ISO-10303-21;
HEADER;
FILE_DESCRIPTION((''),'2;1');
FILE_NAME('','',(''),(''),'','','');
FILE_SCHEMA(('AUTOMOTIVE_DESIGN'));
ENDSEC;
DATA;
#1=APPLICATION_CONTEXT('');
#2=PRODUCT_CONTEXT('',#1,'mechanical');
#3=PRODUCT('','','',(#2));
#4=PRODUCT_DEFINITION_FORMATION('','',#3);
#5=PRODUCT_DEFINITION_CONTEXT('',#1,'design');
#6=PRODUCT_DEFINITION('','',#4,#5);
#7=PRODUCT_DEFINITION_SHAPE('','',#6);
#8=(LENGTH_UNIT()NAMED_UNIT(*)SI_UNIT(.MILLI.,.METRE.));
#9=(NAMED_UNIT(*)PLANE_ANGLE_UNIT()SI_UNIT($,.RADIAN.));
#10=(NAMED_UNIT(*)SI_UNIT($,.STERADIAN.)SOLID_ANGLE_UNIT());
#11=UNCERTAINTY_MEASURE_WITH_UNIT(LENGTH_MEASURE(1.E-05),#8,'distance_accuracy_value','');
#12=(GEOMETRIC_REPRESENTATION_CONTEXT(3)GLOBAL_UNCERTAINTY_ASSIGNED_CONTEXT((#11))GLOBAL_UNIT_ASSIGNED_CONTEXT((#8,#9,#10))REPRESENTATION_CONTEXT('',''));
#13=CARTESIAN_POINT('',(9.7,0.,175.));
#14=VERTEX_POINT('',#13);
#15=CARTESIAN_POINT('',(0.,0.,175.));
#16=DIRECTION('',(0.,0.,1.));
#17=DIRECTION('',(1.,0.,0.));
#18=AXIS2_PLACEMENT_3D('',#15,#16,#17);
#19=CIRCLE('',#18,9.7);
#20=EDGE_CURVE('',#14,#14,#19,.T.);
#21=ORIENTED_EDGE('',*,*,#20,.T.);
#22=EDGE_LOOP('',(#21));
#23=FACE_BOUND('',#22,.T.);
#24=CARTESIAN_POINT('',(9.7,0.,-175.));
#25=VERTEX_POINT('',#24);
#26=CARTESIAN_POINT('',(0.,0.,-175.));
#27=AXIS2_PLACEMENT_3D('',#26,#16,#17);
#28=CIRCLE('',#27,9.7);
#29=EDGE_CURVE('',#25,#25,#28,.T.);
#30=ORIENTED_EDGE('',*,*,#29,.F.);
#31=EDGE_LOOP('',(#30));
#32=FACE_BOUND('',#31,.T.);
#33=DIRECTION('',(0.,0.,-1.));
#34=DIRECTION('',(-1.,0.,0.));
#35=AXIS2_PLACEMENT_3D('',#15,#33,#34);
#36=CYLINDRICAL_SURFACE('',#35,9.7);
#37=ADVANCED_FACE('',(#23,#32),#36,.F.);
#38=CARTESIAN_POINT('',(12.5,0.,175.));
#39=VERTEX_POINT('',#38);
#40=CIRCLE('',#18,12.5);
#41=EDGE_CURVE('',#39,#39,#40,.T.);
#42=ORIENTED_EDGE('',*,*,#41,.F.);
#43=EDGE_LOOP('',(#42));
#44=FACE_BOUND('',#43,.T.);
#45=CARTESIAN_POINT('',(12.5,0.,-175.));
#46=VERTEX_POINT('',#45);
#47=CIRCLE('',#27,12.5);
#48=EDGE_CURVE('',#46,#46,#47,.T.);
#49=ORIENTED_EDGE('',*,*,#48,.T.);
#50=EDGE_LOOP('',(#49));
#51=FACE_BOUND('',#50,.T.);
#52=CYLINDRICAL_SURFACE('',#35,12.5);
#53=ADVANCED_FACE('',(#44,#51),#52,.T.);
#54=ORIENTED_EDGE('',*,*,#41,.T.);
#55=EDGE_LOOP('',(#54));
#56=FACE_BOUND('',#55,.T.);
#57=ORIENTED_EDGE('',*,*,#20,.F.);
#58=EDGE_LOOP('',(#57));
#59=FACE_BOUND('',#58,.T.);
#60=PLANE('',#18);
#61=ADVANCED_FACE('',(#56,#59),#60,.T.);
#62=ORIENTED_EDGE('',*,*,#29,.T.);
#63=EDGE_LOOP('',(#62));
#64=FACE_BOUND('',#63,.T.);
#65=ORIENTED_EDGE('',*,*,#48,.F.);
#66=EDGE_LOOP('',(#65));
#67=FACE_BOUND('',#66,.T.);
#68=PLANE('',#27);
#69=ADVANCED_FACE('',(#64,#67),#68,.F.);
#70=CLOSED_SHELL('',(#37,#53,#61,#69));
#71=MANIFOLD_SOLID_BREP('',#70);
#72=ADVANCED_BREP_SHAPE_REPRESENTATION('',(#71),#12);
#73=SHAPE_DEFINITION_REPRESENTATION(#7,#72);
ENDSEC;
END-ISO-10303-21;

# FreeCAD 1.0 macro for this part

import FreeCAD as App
import Part
import Sketcher

doc = App.newDocument("Part")
body = doc.addObject("PartDesign::Body", "Body")

# Sketch on XY plane
sketch1 = doc.addObject("Sketcher::SketchObject", "Sketch")
body.addObject(sketch1)
sketch1.AttachmentSupport = (doc.XY_Plane, [""])
sketch1.MapMode = "FlatFace"
sketch1.addGeometry(Part.Circle(App.Vector(0, 0, 0), App.Vector(0, 0, 1), 12), False)
sketch1.addGeometry(Part.Circle(App.Vector(0, 0, 0), App.Vector(0, 0, 1), 10), False)
sketch1.addConstraint(Sketcher.Constraint("Coincident", 0, 3, -1, 1))
sketch1.addConstraint(Sketcher.Constraint("Coincident", 1, 3, -1, 1))
sketch1.addConstraint(Sketcher.Constraint("Diameter", 0, 25.0))
sketch1.addConstraint(Sketcher.Constraint("Diameter", 1, 19.4))
pad1 = doc.addObject("PartDesign::Pad", "Pad")
body.addObject(pad1)
pad1.Profile = sketch1
pad1.Length = 350
pad1.Midplane = True

doc.recompute()
